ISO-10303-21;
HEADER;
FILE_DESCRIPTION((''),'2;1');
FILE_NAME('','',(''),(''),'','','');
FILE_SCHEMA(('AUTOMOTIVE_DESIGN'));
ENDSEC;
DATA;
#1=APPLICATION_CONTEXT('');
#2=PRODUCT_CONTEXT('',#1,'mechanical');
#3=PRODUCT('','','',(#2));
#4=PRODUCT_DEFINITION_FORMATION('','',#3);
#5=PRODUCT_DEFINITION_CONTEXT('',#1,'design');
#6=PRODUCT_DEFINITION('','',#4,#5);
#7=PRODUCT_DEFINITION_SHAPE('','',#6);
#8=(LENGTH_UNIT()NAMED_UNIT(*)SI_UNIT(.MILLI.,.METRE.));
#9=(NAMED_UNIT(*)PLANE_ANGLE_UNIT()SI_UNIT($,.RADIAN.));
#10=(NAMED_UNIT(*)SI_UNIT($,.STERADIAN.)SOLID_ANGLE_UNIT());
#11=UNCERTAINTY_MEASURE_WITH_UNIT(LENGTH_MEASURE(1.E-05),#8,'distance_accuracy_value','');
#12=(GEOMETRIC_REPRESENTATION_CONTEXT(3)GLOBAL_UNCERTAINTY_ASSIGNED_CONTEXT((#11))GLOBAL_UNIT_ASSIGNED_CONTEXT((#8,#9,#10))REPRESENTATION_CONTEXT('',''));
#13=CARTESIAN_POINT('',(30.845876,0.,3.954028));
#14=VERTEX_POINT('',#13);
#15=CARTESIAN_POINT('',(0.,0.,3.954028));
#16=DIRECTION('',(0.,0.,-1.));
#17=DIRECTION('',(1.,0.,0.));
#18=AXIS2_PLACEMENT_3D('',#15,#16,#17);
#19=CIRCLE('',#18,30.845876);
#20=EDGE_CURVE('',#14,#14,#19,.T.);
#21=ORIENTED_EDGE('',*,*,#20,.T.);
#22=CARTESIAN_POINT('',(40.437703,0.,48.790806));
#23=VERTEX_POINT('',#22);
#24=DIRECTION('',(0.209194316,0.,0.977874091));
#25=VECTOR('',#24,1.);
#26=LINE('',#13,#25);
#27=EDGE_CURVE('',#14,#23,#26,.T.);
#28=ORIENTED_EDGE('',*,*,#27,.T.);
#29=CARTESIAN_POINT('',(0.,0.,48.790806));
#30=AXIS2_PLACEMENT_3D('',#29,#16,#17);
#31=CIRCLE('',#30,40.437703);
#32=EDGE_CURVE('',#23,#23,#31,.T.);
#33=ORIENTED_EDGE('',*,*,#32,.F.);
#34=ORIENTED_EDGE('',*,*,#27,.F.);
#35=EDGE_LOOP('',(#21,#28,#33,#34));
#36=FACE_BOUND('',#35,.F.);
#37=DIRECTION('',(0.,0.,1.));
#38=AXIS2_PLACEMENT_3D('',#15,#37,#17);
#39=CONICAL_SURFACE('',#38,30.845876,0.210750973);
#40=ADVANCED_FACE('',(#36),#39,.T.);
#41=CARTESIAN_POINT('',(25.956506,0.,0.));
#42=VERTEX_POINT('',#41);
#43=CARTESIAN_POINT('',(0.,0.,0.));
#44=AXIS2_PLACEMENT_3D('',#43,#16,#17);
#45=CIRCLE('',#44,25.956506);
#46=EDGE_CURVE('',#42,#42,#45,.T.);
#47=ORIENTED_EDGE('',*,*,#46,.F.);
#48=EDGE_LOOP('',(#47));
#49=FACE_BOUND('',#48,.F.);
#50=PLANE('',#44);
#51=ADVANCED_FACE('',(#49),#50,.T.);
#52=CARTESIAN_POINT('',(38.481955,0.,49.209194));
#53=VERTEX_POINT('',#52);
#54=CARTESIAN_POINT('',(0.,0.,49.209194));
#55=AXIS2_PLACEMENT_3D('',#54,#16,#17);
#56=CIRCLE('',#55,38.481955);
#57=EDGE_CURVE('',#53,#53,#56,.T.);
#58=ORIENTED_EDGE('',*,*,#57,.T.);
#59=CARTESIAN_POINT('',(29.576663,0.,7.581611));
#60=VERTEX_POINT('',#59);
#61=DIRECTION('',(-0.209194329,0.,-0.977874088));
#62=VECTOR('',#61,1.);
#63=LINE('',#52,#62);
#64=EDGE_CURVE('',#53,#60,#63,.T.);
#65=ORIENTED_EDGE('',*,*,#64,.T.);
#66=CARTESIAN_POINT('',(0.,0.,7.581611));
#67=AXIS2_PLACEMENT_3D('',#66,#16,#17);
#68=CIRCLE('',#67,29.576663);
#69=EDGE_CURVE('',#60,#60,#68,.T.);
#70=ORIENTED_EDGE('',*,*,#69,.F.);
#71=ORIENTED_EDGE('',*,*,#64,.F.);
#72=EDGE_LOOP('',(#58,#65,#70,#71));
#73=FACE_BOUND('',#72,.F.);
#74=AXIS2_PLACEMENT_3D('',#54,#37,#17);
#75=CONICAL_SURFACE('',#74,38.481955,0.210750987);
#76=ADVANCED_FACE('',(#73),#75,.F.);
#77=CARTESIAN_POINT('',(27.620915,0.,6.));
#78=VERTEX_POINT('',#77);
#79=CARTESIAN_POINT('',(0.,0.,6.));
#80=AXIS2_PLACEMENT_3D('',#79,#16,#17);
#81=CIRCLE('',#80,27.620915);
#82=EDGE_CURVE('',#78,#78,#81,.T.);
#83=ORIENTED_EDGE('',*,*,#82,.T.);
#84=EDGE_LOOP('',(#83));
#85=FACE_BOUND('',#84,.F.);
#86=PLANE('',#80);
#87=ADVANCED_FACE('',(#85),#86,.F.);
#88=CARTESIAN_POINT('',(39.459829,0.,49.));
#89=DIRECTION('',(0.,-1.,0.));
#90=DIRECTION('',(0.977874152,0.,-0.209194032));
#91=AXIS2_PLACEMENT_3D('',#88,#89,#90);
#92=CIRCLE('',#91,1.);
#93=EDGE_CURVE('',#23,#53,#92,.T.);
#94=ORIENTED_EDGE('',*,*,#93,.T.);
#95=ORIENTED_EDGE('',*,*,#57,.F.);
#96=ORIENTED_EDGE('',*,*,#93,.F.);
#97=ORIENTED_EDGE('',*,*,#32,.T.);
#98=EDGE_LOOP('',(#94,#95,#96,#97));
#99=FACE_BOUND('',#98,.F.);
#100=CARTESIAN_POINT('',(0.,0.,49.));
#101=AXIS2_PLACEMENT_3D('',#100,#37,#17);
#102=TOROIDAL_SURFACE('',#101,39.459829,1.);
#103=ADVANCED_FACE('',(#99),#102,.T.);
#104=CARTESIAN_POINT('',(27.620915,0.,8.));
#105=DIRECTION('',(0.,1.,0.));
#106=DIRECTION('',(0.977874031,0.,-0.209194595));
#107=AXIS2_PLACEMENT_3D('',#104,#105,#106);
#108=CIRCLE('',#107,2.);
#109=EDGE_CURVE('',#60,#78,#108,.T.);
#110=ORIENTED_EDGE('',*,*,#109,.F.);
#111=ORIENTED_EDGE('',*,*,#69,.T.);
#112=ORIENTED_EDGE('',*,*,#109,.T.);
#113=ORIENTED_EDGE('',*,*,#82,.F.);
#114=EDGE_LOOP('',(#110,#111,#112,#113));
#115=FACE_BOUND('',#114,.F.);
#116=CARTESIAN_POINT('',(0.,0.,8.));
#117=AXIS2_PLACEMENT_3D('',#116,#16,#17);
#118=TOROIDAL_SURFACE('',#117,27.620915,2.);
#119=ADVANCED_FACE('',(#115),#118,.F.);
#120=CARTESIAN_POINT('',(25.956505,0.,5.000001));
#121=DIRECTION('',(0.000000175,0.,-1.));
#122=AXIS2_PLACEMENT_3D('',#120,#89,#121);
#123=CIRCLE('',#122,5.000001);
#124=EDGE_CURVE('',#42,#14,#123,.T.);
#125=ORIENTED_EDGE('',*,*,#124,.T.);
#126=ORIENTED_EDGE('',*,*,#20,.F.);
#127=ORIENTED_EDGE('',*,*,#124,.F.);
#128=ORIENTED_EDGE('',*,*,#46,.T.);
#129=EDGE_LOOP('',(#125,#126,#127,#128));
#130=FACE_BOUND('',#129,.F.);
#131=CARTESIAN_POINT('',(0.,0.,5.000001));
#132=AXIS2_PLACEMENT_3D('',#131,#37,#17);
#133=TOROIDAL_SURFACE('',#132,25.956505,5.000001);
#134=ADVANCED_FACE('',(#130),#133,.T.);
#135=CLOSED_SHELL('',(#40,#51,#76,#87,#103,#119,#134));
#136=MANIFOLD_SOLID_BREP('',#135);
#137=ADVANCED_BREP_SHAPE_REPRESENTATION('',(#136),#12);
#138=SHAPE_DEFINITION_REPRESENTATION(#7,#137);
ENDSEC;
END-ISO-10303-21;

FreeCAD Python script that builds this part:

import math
import FreeCAD as App
import Part
import Sketcher
from FreeCAD import Vector

doc = App.newDocument("Part")
body = doc.addObject("PartDesign::Body", "Body")

sketch1 = body.newObject("Sketcher::SketchObject", "Sketch")
sketch1.AttachmentSupport = (doc.getObject("XZ_Plane"), [""])
sketch1.MapMode = "FlatFace"
sketch1.addGeometry(Part.LineSegment(Vector(0, 6, 0), Vector(0, 0, 0)), False)
sketch1.addGeometry(Part.LineSegment(Vector(0, 0, 0), Vector(25.956506, 0, 0)), False)
sketch1.addGeometry(Part.ArcOfCircle(Part.Circle(Vector(25.956505, 5.000001, 0), Vector(0, 0, 1), 5.000001), math.radians(-89.99999), math.radians(-12.075152)), False)
sketch1.addGeometry(Part.LineSegment(Vector(30.845876, 3.954028, 0), Vector(40.437703, 48.790806, 0)), False)
sketch1.addGeometry(Part.ArcOfCircle(Part.Circle(Vector(39.459829, 49, 0), Vector(0, 0, 1), 1), math.radians(-12.075125), math.radians(167.924875)), False)
sketch1.addGeometry(Part.LineSegment(Vector(38.481955, 49.209194, 0), Vector(29.576663, 7.581611, 0)), False)
sketch1.addGeometry(Part.ArcOfCircle(Part.Circle(Vector(27.620915, 8, 0), Vector(0, 0, 1), 2), math.radians(-89.999991), math.radians(-12.075158)), False)
sketch1.addGeometry(Part.LineSegment(Vector(27.620915, 6, 0), Vector(0, 6, 0)), False)
sketch1.addConstraint(Sketcher.Constraint("Coincident", 0, 2, 1, 1))
sketch1.addConstraint(Sketcher.Constraint("Tangent", 1, 2, 2, 1))
sketch1.addConstraint(Sketcher.Constraint("Tangent", 2, 2, 3, 1))
sketch1.addConstraint(Sketcher.Constraint("Tangent", 3, 2, 4, 1))
sketch1.addConstraint(Sketcher.Constraint("Tangent", 4, 2, 5, 1))
sketch1.addConstraint(Sketcher.Constraint("Tangent", 5, 2, 6, 2))
sketch1.addConstraint(Sketcher.Constraint("Tangent", 6, 1, 7, 1))
sketch1.addConstraint(Sketcher.Constraint("Coincident", 7, 2, 0, 1))
sketch1.addConstraint(Sketcher.Constraint("Vertical", 0))
sketch1.addConstraint(Sketcher.Constraint("Horizontal", 1))
sketch1.addConstraint(Sketcher.Constraint("Horizontal", 7))
sketch1.addConstraint(Sketcher.Constraint("Coincident", 0, 2, -1, 1))
sketch1.addConstraint(Sketcher.Constraint("Parallel", 3, 5))
sketch1.addConstraint(Sketcher.Constraint("Radius", 2, 5.000001))
sketch1.addConstraint(Sketcher.Constraint("Radius", 4, 1.0))
sketch1.addConstraint(Sketcher.Constraint("Radius", 6, 2.0))
sketch1.addConstraint(Sketcher.Constraint("DistanceY", 0, 2, 0, 1, 6.0))
sketch1.addConstraint(Sketcher.Constraint("DistanceY", -1, 1, 4, 3, 49.0))
sketch1.addConstraint(Sketcher.Constraint("Distance", 3, 45.851279))
sketch1.addConstraint(Sketcher.Constraint("DistanceX", 1, 1, 1, 2, 25.956506))
revolution = body.newObject("PartDesign::Revolution", "Revolution")
revolution.Profile = sketch1
revolution.ReferenceAxis = (sketch1, ["V_Axis"])
revolution.Angle = 360

doc.recompute()
